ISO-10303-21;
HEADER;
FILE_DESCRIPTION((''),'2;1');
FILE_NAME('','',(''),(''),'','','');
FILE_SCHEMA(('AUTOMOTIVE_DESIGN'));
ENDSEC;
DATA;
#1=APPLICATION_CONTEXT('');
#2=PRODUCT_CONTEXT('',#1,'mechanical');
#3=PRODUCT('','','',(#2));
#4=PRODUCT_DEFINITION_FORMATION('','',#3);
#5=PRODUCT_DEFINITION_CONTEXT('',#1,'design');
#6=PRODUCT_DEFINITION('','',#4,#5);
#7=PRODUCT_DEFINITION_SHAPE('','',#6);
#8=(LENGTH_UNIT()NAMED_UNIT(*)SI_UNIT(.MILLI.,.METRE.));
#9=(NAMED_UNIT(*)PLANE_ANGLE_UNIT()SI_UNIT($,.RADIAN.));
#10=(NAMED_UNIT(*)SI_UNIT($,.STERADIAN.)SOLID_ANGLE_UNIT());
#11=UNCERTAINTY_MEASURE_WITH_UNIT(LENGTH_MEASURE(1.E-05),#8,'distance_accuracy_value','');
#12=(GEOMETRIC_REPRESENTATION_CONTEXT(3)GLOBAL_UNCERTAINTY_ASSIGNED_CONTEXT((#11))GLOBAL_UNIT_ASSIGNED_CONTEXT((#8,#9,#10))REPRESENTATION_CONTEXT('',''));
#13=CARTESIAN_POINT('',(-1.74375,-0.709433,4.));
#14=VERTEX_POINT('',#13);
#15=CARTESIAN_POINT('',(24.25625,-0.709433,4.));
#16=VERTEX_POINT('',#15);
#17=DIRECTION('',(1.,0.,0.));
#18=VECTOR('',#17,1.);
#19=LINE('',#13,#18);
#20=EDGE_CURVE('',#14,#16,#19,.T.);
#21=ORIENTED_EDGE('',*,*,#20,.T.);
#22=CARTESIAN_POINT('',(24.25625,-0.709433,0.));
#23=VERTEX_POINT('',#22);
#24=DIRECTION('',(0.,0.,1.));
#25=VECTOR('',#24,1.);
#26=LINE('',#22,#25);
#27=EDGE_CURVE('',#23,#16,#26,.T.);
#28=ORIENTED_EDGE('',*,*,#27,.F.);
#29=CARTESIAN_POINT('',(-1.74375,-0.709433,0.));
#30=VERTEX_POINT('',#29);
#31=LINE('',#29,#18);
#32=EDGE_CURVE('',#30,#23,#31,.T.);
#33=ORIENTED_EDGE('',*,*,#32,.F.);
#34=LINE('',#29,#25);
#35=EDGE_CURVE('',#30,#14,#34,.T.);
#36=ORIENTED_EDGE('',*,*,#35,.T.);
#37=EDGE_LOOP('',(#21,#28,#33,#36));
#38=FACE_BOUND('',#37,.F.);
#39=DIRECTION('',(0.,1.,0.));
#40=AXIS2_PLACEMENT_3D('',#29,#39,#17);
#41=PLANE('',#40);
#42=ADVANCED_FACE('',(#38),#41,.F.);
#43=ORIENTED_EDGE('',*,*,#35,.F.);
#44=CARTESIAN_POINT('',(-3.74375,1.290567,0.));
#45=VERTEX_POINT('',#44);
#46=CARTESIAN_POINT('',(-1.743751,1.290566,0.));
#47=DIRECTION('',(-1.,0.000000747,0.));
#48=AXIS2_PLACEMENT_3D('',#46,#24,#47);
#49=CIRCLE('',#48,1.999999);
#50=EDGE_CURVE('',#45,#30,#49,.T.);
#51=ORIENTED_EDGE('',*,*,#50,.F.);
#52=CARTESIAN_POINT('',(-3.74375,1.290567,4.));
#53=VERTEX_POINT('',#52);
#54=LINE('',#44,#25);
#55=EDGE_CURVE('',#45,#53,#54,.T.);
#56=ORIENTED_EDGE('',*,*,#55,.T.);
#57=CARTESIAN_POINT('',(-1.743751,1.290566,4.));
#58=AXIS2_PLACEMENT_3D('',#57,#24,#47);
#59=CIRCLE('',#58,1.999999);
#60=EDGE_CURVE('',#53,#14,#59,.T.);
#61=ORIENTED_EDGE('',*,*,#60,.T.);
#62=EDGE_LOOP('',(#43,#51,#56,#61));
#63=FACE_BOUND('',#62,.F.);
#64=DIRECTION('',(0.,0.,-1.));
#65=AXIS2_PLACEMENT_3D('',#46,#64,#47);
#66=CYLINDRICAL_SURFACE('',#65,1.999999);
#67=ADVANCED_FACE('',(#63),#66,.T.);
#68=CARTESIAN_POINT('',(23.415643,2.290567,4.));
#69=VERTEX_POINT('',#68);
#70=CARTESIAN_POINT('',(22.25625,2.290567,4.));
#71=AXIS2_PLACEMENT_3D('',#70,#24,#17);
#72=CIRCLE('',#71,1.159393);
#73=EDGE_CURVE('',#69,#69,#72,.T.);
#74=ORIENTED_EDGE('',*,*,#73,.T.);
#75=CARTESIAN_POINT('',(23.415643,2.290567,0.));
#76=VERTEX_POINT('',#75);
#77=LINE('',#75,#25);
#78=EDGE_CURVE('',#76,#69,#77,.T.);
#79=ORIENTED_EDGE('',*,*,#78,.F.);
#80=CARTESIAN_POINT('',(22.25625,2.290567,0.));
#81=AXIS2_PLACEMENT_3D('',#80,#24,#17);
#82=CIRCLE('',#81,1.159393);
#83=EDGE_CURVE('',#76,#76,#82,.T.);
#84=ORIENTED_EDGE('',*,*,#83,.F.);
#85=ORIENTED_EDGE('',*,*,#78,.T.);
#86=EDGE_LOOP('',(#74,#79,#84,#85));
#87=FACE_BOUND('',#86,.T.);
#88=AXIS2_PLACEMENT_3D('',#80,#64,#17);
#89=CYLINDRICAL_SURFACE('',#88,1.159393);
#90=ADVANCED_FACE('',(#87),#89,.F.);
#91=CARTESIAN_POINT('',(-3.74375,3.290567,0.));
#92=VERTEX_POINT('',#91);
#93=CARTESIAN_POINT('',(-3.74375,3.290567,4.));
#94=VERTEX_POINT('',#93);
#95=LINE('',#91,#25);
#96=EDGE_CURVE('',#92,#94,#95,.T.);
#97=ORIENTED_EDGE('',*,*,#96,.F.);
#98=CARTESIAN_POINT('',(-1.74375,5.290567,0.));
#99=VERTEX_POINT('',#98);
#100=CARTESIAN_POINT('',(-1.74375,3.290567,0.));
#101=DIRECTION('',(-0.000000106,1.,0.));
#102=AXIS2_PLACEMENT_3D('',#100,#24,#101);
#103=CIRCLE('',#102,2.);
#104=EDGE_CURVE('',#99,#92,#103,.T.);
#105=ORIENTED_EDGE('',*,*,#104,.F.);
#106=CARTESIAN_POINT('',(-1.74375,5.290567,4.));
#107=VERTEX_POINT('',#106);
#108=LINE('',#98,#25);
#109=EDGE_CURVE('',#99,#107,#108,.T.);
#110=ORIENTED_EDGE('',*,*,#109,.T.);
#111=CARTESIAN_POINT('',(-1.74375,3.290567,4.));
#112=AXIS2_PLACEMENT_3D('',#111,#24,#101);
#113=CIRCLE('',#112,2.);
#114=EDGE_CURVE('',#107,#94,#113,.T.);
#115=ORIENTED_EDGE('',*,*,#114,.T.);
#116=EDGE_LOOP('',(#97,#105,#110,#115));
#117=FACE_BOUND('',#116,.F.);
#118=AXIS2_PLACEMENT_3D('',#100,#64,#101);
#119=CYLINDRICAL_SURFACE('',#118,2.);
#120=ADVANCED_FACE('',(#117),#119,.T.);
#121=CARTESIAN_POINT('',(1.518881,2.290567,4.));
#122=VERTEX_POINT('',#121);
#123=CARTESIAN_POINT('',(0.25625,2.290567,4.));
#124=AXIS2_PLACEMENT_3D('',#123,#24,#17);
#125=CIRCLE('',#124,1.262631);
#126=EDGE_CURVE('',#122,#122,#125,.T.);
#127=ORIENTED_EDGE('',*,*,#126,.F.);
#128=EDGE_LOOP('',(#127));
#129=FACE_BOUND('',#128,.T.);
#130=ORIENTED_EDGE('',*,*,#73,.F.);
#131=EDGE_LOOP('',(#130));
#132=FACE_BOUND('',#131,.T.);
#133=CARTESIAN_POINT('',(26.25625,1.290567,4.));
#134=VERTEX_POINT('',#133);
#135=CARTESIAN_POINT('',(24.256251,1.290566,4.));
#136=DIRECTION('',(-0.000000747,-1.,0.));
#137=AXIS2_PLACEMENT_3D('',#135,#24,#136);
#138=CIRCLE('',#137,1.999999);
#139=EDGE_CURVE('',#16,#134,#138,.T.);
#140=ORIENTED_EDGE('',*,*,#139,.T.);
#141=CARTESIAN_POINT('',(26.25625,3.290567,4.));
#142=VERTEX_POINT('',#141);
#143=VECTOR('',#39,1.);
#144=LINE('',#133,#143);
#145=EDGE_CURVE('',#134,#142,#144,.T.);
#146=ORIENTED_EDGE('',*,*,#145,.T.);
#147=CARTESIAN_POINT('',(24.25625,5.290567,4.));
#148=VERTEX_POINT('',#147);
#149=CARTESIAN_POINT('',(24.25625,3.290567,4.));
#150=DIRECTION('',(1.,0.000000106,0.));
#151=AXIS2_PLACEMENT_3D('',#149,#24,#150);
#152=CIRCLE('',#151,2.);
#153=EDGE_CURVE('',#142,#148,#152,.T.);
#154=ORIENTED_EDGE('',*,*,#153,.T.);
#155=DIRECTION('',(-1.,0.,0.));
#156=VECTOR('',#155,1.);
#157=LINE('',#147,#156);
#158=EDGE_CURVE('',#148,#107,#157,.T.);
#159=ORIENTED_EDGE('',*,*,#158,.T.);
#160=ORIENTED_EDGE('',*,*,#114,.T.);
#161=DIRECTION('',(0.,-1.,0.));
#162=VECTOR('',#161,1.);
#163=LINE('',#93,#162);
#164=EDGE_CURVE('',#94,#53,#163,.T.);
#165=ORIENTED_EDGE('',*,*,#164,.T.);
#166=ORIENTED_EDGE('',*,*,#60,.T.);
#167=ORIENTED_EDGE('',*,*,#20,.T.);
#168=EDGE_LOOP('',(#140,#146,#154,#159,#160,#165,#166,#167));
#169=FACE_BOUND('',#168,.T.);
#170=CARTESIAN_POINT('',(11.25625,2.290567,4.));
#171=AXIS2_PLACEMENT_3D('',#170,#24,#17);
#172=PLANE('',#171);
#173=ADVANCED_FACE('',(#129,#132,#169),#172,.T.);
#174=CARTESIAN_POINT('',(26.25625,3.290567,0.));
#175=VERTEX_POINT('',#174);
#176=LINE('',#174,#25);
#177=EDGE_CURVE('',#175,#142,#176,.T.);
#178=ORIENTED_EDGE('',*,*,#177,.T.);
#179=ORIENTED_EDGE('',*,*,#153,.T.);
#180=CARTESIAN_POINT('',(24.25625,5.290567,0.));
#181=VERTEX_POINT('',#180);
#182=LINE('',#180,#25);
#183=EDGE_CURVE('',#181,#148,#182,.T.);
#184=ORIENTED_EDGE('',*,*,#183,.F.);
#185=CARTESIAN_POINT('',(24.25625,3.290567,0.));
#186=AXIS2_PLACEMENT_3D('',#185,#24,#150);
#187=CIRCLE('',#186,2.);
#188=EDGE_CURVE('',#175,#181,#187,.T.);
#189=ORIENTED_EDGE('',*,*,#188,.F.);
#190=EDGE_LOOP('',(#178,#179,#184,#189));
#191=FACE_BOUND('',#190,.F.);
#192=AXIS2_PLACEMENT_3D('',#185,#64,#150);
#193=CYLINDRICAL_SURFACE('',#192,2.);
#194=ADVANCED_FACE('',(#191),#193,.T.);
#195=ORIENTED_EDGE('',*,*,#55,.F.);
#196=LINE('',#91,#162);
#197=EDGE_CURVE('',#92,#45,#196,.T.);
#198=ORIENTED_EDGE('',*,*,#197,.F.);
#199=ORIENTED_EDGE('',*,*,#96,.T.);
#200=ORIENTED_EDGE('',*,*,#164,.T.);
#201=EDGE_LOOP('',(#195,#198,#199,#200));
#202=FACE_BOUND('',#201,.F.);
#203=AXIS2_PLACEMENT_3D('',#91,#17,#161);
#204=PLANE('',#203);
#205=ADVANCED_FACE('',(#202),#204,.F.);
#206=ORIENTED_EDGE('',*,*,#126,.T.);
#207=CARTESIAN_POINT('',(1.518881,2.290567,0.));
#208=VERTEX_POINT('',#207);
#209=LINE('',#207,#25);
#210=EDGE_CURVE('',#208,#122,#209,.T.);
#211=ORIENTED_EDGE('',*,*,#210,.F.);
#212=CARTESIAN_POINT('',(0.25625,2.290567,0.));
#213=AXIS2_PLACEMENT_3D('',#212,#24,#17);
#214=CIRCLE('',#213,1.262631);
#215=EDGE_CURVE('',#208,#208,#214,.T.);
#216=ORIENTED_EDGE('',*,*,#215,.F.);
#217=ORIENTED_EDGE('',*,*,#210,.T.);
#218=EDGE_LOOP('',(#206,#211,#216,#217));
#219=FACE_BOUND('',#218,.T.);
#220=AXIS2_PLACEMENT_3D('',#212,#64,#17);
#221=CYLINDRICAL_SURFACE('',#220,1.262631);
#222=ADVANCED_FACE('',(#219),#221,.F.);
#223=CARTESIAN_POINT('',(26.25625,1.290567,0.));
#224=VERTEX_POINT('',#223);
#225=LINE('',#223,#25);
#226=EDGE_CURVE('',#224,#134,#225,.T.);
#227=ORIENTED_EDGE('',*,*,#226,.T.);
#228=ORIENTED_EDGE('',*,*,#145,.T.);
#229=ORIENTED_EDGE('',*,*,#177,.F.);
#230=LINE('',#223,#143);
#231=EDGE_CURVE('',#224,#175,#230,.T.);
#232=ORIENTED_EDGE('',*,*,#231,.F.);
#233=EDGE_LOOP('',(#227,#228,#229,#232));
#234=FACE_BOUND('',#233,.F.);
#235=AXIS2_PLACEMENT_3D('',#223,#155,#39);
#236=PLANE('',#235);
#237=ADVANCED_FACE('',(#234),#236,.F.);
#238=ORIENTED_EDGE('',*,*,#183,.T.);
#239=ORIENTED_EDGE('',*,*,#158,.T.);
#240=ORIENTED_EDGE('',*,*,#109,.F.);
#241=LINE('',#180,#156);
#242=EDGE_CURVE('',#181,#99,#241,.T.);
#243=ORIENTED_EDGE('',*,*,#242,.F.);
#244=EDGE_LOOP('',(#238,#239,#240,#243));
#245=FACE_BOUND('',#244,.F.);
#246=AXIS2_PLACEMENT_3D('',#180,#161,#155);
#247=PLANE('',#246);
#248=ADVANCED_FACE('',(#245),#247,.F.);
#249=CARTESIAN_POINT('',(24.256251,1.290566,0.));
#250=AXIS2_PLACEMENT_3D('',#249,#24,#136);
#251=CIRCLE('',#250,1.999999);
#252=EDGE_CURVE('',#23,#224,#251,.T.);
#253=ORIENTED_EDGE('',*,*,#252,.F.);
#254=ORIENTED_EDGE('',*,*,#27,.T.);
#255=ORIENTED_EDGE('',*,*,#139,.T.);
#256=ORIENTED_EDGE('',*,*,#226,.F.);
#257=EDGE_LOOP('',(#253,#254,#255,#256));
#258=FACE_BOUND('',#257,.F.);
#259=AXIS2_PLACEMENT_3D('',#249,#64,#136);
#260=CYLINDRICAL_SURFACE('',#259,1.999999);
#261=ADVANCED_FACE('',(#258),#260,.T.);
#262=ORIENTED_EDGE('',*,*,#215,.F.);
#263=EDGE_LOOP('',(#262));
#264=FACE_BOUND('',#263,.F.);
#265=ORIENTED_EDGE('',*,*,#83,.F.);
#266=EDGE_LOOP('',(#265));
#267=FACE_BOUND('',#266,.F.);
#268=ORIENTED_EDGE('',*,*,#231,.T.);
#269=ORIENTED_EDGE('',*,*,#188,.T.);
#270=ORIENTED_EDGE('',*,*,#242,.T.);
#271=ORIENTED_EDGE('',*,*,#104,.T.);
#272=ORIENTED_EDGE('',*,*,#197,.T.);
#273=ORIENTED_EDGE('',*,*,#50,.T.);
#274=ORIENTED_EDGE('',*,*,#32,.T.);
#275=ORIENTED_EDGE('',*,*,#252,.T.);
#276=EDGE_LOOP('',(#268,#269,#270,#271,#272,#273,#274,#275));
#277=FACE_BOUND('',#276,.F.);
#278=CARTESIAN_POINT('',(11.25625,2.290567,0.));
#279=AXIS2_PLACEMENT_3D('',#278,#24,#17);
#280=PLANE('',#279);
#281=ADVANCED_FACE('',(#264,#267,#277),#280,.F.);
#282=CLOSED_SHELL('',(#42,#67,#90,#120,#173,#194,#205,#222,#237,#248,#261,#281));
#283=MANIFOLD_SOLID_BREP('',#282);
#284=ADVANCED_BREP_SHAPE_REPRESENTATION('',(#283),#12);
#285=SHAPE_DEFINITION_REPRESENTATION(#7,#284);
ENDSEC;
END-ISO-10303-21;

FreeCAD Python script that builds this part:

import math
import FreeCAD as App
import Part
import Sketcher

V = App.Vector
Q = App.Units.Quantity

doc = App.newDocument("Part")
body = doc.addObject("PartDesign::Body", "Body")

sketch1 = doc.addObject("Sketcher::SketchObject", "Sketch")
body.addObject(sketch1)
sketch1.AttachmentSupport = (doc.XY_Plane, [""])
sketch1.MapMode = "FlatFace"
sketch1.addGeometry([
    Part.LineSegment(V(24.25625, 5.290567, 0), V(-1.74375, 5.290567, 0)),
    Part.ArcOfCircle(Part.Circle(V(-1.74375, 3.290567, 0), V(0, 0, 1), 2), math.radians(90.000006), math.radians(179.999994)),
    Part.LineSegment(V(-3.74375, 3.290567, 0), V(-3.74375, 1.290567, 0)),
    Part.ArcOfCircle(Part.Circle(V(-1.743751, 1.290566, 0), V(0, 0, 1), 1.999999), math.radians(179.999957), math.radians(270.000043)),
    Part.LineSegment(V(-1.74375, -0.709433, 0), V(24.25625, -0.709433, 0)),
    Part.ArcOfCircle(Part.Circle(V(24.256251, 1.290566, 0), V(0, 0, 1), 1.999999), math.radians(-90.000043), math.radians(0.000043)),
    Part.LineSegment(V(26.25625, 1.290567, 0), V(26.25625, 3.290567, 0)),
    Part.ArcOfCircle(Part.Circle(V(24.25625, 3.290567, 0), V(0, 0, 1), 2), math.radians(0.000006), math.radians(89.999994)),
    Part.Circle(V(0.25625, 2.290567, 0), V(0, 0, 1), 1.262631),
    Part.Circle(V(22.25625, 2.290567, 0), V(0, 0, 1), 1.159393),
], False)
sketch1.addConstraint([
    Sketcher.Constraint("Tangent", 0, 2, 1, 1),
    Sketcher.Constraint("Tangent", 1, 2, 2, 1),
    Sketcher.Constraint("Tangent", 2, 2, 3, 1),
    Sketcher.Constraint("Tangent", 3, 2, 4, 1),
    Sketcher.Constraint("Tangent", 4, 2, 5, 1),
    Sketcher.Constraint("Tangent", 5, 2, 6, 1),
    Sketcher.Constraint("Tangent", 6, 2, 7, 1),
    Sketcher.Constraint("Tangent", 7, 2, 0, 1),
    Sketcher.Constraint("Horizontal", 0),
    Sketcher.Constraint("Vertical", 2),
    Sketcher.Constraint("Horizontal", 4),
    Sketcher.Constraint("Vertical", 6),
    Sketcher.Constraint("Equal", 1, 3),
    Sketcher.Constraint("Equal", 3, 5),
    Sketcher.Constraint("Equal", 5, 7),
    Sketcher.Constraint("Horizontal", 8, 3, 9, 3),
    Sketcher.Constraint("Radius", 1, Q("2 mm")),
    Sketcher.Constraint("DistanceX", 0, 2, 0, 1, Q("26 mm")),
    Sketcher.Constraint("DistanceY", 2, 2, 2, 1, Q("2 mm")),
    Sketcher.Constraint("DistanceX", 1, 3, 8, 3, Q("2 mm")),
    Sketcher.Constraint("DistanceY", 8, 3, 1, 3, Q("1 mm")),
    Sketcher.Constraint("DistanceX", 9, 3, 7, 3, Q("2 mm")),
    Sketcher.Constraint("Diameter", 8, Q("2.525262 mm")),
    Sketcher.Constraint("Diameter", 9, Q("2.318786 mm")),
    Sketcher.Constraint("DistanceX", 1, 3, -1, 1, Q("1.74375 mm")),
    Sketcher.Constraint("DistanceY", -1, 1, 1, 3, Q("3.290567 mm")),
])
pad1 = doc.addObject("PartDesign::Pad", "Pad")
body.addObject(pad1)
pad1.Profile = sketch1
pad1.Length = 4

doc.recompute()
